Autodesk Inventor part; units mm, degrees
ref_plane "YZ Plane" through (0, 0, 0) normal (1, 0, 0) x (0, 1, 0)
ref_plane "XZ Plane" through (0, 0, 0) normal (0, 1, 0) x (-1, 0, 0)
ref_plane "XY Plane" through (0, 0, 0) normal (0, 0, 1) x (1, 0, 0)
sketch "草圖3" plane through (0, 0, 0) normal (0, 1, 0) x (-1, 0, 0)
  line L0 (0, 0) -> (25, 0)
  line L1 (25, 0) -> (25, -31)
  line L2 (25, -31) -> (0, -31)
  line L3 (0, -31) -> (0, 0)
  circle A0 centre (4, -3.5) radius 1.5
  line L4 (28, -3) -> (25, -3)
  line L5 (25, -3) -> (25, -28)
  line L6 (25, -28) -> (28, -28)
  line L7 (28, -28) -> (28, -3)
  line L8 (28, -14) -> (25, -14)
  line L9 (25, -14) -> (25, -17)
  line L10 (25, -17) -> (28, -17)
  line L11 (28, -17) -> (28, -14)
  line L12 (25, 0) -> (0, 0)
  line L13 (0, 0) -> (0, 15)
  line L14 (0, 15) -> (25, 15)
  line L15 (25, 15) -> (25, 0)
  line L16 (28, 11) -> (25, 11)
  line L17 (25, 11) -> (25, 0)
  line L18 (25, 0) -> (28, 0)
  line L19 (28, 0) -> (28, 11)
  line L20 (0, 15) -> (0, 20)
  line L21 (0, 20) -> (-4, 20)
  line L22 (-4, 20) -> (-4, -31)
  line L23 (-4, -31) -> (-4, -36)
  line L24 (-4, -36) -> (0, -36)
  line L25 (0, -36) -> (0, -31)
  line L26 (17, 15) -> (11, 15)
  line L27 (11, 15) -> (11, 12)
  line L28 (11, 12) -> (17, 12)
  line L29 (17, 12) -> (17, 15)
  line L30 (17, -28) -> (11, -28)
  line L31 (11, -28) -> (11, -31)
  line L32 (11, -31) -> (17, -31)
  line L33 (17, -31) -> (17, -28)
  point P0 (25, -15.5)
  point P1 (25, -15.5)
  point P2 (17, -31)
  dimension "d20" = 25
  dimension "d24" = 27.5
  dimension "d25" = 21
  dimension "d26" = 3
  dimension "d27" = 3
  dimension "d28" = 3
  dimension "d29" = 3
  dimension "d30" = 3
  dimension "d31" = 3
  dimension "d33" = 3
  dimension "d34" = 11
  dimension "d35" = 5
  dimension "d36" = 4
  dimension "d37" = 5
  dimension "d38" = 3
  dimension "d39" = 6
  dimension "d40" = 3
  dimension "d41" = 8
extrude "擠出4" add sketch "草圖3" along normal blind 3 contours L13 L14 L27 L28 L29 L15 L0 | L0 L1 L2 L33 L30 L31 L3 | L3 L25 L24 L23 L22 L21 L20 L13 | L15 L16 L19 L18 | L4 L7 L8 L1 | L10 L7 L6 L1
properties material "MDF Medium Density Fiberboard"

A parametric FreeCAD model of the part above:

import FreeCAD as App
import Part
import Sketcher
from FreeCAD import Vector


def add_polygon(sketch, points):
    """Adds a closed chain of lines whose ends are joined by coincident constraints."""
    first, n = sketch.GeometryCount, len(points)
    for a, b in zip(points, points[1:] + points[:1]):
        sketch.addGeometry(Part.LineSegment(App.Vector(*a, 0), App.Vector(*b, 0)), False)
    for i in range(n):
        sketch.addConstraint(Sketcher.Constraint("Coincident", first + i, 2, first + (i + 1) % n, 1))

doc = App.newDocument("Part")
body = doc.addObject("PartDesign::Body", "Body")

# Sketch on XZ plane
sketch1 = body.newObject("Sketcher::SketchObject", "Sketch")
sketch1.AttachmentSupport = (doc.getObject("XZ_Plane"), [""])
sketch1.MapMode = "FlatFace"
add_polygon(sketch1, [(-11, 15), (0, 15), (0, 20), (4, 20), (4, -36), (0, -36), (0, -31), (-11, -31), (-11, -28), (-17, -28), (-17, -31), (-25, -31), (-25, -28), (-28, -28), (-28, -17), (-25, -17), (-25, -14), (-28, -14), (-28, -3), (-25, -3), (-25, 0), (-28, 0), (-28, 11), (-25, 11), (-25, 15), (-17, 15), (-17, 12), (-11, 12)])  # lines 0-27
sketch1.addGeometry(Part.Circle(Vector(-4, -3.5, 0), Vector(0, 0, 1), 1.5), False)  # 28
sketch1.addConstraint([
    Sketcher.Constraint("Horizontal", 0),
    Sketcher.Constraint("Vertical", 1),
    Sketcher.Constraint("Horizontal", 2),
    Sketcher.Constraint("Vertical", 3),
    Sketcher.Constraint("Horizontal", 4),
    Sketcher.Constraint("Vertical", 5),
    Sketcher.Constraint("Horizontal", 6),
    Sketcher.Constraint("Vertical", 7),
    Sketcher.Constraint("Horizontal", 8),
    Sketcher.Constraint("Vertical", 9),
    Sketcher.Constraint("Horizontal", 10),
    Sketcher.Constraint("Vertical", 11),
    Sketcher.Constraint("Horizontal", 12),
    Sketcher.Constraint("Vertical", 13),
    Sketcher.Constraint("Horizontal", 14),
    Sketcher.Constraint("Vertical", 15),
    Sketcher.Constraint("Horizontal", 16),
    Sketcher.Constraint("Vertical", 17),
    Sketcher.Constraint("Horizontal", 18),
    Sketcher.Constraint("Vertical", 19),
    Sketcher.Constraint("Horizontal", 20),
    Sketcher.Constraint("Vertical", 21),
    Sketcher.Constraint("Horizontal", 22),
    Sketcher.Constraint("Vertical", 23),
    Sketcher.Constraint("Horizontal", 24),
    Sketcher.Constraint("Vertical", 25),
    Sketcher.Constraint("Horizontal", 26),
    Sketcher.Constraint("Vertical", 27),
    Sketcher.Constraint("PointOnObject", 0, 2, -2),
    Sketcher.Constraint("PointOnObject", 4, 2, -2),
    Sketcher.Constraint("PointOnObject", 19, 2, -1),
    Sketcher.Constraint("Horizontal", 6, 2, 9, 2),
    Sketcher.Constraint("Horizontal", 8, 2, 11, 2),
    Sketcher.Constraint("Horizontal", 0, 2, 23, 2),
    Sketcher.Constraint("Vertical", 11, 2, 14, 2),
    Sketcher.Constraint("Vertical", 13, 2, 16, 2),
    Sketcher.Constraint("Vertical", 15, 2, 18, 2),
    Sketcher.Constraint("Vertical", 17, 2, 20, 2),
    Sketcher.Constraint("Vertical", 19, 2, 22, 2),
    Sketcher.Constraint("Vertical", 9, 2, 24, 2),
    Sketcher.Constraint("Vertical", 7, 2, 26, 2),
    Sketcher.Constraint("Equal", 1, 5),
    Sketcher.Constraint("Equal", 22, 7),
    Sketcher.Constraint("Equal", 6, 13),
    Sketcher.Constraint("Equal", 11, 15),
    Sketcher.Constraint("Equal", 13, 17),
    Sketcher.Constraint("Equal", 15, 19),
    Sketcher.Constraint("Equal", 17, 21),
    Sketcher.Constraint("Equal", 4, 23),
    Sketcher.Constraint("Equal", 19, 25),
    Sketcher.Constraint("Diameter", 28, 3.0),
    Sketcher.Constraint("DistanceX", 0, 1, 0, 2, 11.0),
    Sketcher.Constraint("DistanceX", 2, 1, 2, 2, 4.0),
    Sketcher.Constraint("DistanceX", 8, 2, 8, 1, 6.0),
    Sketcher.Constraint("DistanceX", 10, 2, 10, 1, 8.0),
    Sketcher.Constraint("DistanceX", 12, 2, 12, 1, 3.0),
    Sketcher.Constraint("DistanceY", 1, 1, 1, 2, 5.0),
    Sketcher.Constraint("DistanceX", 28, 3, -1, 1, 4.0),
    Sketcher.Constraint("DistanceY", 5, 2, 28, 3, 27.5),
])
pad1 = body.newObject("PartDesign::Pad", "Pad")
pad1.Profile = sketch1
pad1.Length = 3
pad1.Reversed = True

doc.recompute()
